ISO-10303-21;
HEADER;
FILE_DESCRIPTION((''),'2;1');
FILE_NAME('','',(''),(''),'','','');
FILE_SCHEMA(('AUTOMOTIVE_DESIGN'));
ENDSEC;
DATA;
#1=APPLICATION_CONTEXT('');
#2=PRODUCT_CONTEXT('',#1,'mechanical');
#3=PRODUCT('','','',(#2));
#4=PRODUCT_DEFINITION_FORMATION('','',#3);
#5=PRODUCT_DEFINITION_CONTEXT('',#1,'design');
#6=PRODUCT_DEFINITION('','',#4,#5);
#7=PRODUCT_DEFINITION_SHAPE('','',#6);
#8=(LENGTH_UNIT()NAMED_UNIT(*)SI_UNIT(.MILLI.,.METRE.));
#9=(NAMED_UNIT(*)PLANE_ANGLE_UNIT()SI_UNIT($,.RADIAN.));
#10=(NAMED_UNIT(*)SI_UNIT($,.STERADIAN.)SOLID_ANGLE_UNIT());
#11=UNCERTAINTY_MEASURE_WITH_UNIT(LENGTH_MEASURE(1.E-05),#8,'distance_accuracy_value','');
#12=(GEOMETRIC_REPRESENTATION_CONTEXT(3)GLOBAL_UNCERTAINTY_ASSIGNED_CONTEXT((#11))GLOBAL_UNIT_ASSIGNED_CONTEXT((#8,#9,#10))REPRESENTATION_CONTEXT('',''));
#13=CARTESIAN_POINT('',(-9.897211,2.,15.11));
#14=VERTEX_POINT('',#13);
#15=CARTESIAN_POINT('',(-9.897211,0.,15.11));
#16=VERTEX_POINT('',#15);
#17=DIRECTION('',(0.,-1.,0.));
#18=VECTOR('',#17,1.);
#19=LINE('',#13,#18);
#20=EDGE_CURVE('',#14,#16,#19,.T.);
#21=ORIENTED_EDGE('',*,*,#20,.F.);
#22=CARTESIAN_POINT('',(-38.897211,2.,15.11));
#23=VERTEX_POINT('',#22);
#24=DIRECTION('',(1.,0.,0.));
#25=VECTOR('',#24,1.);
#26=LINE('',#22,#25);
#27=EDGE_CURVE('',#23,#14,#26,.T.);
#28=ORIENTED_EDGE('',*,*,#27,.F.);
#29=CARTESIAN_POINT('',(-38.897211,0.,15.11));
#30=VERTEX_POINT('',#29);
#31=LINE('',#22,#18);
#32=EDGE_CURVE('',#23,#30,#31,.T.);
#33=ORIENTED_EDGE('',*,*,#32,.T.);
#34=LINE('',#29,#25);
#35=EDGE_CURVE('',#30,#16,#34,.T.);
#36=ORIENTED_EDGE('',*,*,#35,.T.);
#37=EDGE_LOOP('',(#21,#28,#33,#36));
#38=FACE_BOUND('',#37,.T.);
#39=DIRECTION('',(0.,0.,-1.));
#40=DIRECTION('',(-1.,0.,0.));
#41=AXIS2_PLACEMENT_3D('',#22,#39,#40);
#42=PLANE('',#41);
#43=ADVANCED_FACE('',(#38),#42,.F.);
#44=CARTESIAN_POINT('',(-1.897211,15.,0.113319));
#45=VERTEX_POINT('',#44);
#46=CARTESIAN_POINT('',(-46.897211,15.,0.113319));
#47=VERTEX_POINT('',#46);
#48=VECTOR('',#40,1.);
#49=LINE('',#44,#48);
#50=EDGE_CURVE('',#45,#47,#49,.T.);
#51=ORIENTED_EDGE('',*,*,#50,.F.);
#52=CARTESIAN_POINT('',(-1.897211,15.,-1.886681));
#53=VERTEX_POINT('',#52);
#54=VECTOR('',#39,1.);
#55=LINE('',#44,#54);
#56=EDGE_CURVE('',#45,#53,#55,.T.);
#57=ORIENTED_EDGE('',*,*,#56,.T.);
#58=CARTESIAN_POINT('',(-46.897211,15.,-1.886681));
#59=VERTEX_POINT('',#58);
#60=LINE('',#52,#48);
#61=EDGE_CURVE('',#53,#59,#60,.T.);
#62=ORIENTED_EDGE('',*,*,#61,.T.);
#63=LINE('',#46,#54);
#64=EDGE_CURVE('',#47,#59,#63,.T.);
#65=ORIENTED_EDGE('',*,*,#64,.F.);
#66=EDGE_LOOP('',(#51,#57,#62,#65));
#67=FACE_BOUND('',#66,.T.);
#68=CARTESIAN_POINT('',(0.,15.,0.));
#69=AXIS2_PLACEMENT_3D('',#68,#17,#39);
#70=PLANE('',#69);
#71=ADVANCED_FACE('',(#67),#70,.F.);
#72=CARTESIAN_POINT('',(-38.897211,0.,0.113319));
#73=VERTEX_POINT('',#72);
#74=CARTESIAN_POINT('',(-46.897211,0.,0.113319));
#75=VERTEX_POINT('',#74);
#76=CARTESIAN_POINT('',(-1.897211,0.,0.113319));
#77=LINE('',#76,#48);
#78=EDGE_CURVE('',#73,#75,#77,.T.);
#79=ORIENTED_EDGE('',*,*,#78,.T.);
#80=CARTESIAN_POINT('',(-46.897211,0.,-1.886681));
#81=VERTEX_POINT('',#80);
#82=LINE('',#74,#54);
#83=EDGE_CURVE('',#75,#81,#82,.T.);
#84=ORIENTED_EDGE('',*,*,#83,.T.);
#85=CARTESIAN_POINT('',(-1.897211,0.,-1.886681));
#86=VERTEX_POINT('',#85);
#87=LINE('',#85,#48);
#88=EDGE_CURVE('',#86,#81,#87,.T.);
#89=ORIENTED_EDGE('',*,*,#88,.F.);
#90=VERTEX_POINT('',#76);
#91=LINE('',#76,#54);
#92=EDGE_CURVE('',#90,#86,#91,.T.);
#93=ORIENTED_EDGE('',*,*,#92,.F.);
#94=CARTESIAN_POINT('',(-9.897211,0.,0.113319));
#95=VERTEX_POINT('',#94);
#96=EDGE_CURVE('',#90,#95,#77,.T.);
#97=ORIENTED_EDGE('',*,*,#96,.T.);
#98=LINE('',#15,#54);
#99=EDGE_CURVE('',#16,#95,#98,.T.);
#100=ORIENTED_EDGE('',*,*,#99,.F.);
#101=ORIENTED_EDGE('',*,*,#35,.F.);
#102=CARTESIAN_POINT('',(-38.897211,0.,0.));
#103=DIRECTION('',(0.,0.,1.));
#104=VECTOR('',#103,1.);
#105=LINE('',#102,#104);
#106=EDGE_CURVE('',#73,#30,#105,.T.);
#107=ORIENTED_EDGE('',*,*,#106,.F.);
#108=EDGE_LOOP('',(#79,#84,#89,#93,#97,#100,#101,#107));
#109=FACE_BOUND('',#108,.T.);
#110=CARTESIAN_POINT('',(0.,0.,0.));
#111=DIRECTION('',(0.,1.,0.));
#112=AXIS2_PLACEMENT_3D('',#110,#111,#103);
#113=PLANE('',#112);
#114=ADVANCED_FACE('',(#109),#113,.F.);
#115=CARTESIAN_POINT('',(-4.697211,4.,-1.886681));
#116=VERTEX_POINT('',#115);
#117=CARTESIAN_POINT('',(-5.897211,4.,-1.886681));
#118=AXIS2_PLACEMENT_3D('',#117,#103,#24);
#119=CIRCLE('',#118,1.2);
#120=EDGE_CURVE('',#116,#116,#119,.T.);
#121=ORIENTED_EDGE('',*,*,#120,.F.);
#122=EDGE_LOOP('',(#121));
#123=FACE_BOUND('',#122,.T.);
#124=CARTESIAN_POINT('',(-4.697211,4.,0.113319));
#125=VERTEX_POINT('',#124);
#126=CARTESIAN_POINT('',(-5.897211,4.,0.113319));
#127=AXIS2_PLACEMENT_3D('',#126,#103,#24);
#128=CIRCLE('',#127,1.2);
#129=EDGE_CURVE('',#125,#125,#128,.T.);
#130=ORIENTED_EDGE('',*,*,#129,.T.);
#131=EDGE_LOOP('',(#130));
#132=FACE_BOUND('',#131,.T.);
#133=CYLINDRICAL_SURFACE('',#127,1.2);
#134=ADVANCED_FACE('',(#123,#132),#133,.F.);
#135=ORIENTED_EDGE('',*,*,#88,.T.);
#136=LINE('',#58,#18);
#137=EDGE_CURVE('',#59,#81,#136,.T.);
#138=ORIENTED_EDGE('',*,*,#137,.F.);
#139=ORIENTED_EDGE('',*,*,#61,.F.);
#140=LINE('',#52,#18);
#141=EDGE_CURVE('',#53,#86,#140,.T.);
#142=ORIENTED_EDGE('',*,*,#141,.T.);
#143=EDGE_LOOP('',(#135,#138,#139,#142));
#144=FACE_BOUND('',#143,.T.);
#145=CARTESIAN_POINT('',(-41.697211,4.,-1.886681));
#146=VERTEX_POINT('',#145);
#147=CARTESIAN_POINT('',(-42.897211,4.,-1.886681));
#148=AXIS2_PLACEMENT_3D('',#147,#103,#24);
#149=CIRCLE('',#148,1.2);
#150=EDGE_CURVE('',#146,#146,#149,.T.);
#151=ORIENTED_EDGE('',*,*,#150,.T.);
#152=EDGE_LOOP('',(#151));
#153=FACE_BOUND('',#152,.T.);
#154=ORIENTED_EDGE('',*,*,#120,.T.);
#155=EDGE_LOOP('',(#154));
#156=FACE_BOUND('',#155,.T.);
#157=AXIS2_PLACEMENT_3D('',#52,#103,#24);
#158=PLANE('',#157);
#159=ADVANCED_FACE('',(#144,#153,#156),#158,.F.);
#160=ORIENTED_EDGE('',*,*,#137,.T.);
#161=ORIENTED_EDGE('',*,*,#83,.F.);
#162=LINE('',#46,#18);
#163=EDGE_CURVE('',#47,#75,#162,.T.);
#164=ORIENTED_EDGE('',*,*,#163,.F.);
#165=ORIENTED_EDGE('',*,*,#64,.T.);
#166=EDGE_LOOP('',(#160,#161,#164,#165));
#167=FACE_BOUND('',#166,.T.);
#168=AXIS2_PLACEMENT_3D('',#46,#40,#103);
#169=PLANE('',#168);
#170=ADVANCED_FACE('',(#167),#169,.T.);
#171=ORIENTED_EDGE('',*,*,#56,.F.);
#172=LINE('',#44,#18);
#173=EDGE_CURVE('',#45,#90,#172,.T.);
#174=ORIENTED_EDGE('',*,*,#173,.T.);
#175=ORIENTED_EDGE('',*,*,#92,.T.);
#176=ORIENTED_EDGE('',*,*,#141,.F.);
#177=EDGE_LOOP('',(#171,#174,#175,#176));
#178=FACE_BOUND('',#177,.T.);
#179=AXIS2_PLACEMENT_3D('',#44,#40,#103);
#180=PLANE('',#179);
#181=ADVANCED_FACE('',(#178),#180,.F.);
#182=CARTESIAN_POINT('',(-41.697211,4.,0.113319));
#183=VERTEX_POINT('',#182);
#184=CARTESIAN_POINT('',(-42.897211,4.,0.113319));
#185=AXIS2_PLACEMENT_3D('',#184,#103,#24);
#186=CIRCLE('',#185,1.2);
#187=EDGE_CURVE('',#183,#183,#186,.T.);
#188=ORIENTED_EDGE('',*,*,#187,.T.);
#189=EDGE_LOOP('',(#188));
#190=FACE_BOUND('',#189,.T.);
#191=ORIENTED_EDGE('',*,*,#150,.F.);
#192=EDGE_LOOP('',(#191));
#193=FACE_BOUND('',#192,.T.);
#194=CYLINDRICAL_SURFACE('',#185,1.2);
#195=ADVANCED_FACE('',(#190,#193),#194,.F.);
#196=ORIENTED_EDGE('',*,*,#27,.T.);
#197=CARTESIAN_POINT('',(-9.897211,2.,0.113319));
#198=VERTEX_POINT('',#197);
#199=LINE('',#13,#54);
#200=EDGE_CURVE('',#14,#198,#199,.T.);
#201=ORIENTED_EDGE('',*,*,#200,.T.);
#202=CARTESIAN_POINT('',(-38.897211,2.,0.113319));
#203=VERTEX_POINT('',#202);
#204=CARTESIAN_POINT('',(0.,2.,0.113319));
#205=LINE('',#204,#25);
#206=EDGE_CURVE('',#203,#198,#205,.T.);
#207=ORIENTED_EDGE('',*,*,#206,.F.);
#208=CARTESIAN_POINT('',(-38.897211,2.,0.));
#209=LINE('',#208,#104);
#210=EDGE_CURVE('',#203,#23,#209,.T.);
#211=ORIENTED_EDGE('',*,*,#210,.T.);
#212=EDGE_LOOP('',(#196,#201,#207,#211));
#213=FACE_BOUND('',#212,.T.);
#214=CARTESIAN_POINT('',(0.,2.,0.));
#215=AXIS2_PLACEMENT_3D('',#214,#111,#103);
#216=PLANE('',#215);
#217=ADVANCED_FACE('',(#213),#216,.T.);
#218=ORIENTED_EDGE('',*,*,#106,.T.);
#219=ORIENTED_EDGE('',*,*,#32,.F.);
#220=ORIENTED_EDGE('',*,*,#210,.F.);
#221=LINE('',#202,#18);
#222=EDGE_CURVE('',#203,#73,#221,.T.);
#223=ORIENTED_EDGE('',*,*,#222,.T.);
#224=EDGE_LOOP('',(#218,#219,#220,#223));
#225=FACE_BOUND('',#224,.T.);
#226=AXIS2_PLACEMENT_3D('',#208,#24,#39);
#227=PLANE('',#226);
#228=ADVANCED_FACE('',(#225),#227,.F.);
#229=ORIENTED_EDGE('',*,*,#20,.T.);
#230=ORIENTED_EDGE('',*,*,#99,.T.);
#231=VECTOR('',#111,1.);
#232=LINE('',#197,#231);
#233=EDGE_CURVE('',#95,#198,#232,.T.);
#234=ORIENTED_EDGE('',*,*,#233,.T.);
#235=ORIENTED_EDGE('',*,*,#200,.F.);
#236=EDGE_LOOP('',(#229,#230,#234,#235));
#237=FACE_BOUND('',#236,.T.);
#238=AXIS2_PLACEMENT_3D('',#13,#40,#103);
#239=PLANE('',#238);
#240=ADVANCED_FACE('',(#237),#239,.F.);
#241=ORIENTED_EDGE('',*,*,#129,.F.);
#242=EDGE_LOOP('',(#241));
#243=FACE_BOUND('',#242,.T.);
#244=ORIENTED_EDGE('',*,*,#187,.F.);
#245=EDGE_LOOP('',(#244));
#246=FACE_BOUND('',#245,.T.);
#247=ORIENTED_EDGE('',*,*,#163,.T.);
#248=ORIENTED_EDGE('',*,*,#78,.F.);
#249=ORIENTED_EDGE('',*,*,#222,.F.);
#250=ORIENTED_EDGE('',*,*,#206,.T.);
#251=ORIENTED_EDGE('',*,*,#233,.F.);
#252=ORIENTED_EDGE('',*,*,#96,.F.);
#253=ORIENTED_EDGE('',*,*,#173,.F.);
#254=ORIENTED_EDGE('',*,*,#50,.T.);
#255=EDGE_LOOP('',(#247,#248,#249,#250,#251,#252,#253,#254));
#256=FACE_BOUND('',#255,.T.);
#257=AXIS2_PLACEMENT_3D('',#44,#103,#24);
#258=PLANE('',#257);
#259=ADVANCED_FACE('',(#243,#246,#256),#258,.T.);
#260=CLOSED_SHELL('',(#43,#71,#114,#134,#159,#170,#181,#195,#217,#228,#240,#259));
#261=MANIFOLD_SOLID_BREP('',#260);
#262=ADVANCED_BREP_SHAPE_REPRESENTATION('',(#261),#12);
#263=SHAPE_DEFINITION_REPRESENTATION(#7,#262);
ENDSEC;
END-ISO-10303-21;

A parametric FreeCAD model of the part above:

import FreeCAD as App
import Part
import Sketcher

V = App.Vector
Q = App.Units.Quantity


def add_polygon(sketch, points):
    """Adds a closed chain of lines whose ends are joined by coincident constraints."""
    first, n = sketch.GeometryCount, len(points)
    for a, b in zip(points, points[1:] + points[:1]):
        sketch.addGeometry(Part.LineSegment(App.Vector(*a, 0), App.Vector(*b, 0)), False)
    for i in range(n):
        sketch.addConstraint(Sketcher.Constraint("Coincident", first + i, 2, first + (i + 1) % n, 1))

doc = App.newDocument("Part")
params = doc.addObject("Spreadsheet::Sheet", "Params")
for row, (alias, value) in enumerate([
    ("sketch1_width", "29 mm"),
    ("sketch1_height", "15.11 mm"),
    ("pad1_length", "2 mm"),
    ("sketch2_width", "45 mm"),
    ("sketch2_height", "2 mm"),
    ("pad2_length", "15 mm"),
    ("sketch3_diameter", "2.4 mm"),
    ("hole_diameter", "2.4 mm"),
    ("sketch4_diameter", "2.4 mm"),
    ("hole2_diameter", "2.4 mm"),
], start=1):
    params.set(f"A{row}", alias)
    params.set(f"B{row}", "=" + value)
    params.setAlias(f"B{row}", alias)

body = doc.addObject("PartDesign::Body", "Body")

# Sketch on XZ plane
sketch1 = body.newObject("Sketcher::SketchObject", "Sketch")
sketch1.AttachmentSupport = (doc.getObject("XZ_Plane"), [""])
sketch1.MapMode = "FlatFace"
add_polygon(sketch1, [(-39, 0), (-39, 15), (-10, 15), (-10, 0)])  # lines 0-3
sketch1.addConstraint(Sketcher.Constraint("Vertical", 0))
sketch1.addConstraint(Sketcher.Constraint("Horizontal", 1))
sketch1.addConstraint(Sketcher.Constraint("Vertical", 2))
sketch1.addConstraint(Sketcher.Constraint("Horizontal", 3))
sketch1.addConstraint(Sketcher.Constraint("PointOnObject", 2, 2, -1))
sketch1.addConstraint(Sketcher.Constraint("DistanceX", 1, 1, 1, 2, Q("29 mm")))
sketch1.addConstraint(Sketcher.Constraint("DistanceY", 0, 1, 0, 2, Q("15.11 mm")))
sketch1.addConstraint(Sketcher.Constraint("DistanceX", 0, 2, -1, 1, Q("38.897211 mm")))
sketch1.setExpression("Constraints[9]", "Params.sketch1_width")
sketch1.setExpression("Constraints[10]", "Params.sketch1_height")
pad1 = body.newObject("PartDesign::Pad", "Pad")
pad1.Profile = sketch1
pad1.setExpression("Length", "Params.pad1_length")
pad1.Reversed = True

# Sketch on XZ plane
sketch2 = body.newObject("Sketcher::SketchObject", "Sketch001")
sketch2.AttachmentSupport = (doc.getObject("XZ_Plane"), [""])
sketch2.MapMode = "FlatFace"
add_polygon(sketch2, [(-1.9, -1.9), (-1.9, 0.1), (-46.9, 0.1), (-46.9, -1.9)])  # lines 0-3
sketch2.addConstraint(Sketcher.Constraint("Vertical", 0))
sketch2.addConstraint(Sketcher.Constraint("Horizontal", 1))
sketch2.addConstraint(Sketcher.Constraint("Vertical", 2))
sketch2.addConstraint(Sketcher.Constraint("Horizontal", 3))
sketch2.addConstraint(Sketcher.Constraint("DistanceX", 1, 2, 1, 1, Q("45 mm")))
sketch2.addConstraint(Sketcher.Constraint("DistanceY", 0, 1, 0, 2, Q("2 mm")))
sketch2.addConstraint(Sketcher.Constraint("DistanceX", 0, 2, -1, 1, Q("1.897211 mm")))
sketch2.addConstraint(Sketcher.Constraint("DistanceY", -1, 1, 0, 2, Q("0.113319 mm")))
sketch2.setExpression("Constraints[8]", "Params.sketch2_width")
sketch2.setExpression("Constraints[9]", "Params.sketch2_height")
pad2 = body.newObject("PartDesign::Pad", "Pad001")
pad2.Profile = sketch2
pad2.setExpression("Length", "Params.pad2_length")
pad2.Reversed = True

# Sketch on XY plane
sketch3 = body.newObject("Sketcher::SketchObject", "Sketch002")
sketch3.AttachmentSupport = (doc.getObject("XY_Plane"), [""])
sketch3.MapMode = "FlatFace"
sketch3.AttachmentOffset = App.Placement(V(0, 0, 0.113319), App.Rotation())
sketch3.addGeometry(Part.Circle(V(-42.9, 4, 0), V(0, 0, 1), 1.2), False)
sketch3.addConstraint(Sketcher.Constraint("Diameter", 0, Q("2.4 mm")))
sketch3.addConstraint(Sketcher.Constraint("DistanceY", -1, 1, 0, 3, Q("4 mm")))
sketch3.addConstraint(Sketcher.Constraint("DistanceX", 0, 3, -1, 1, Q("42.897211 mm")))
sketch3.setExpression("Constraints[0]", "Params.sketch3_diameter")
doc.recompute()
hole = body.newObject("PartDesign::Hole", "Hole")
hole.Profile = sketch3
hole.ThreadType = "None"
hole.setExpression("Diameter", "Params.hole_diameter")
hole.DepthType = "ThroughAll"

# Sketch on XY plane
sketch4 = body.newObject("Sketcher::SketchObject", "Sketch003")
sketch4.AttachmentSupport = (doc.getObject("XY_Plane"), [""])
sketch4.MapMode = "FlatFace"
sketch4.AttachmentOffset = App.Placement(V(0, 0, 0.113319), App.Rotation())
sketch4.addGeometry(Part.Circle(V(-5.9, 4, 0), V(0, 0, 1), 1.2), False)
sketch4.addConstraint(Sketcher.Constraint("Diameter", 0, Q("2.4 mm")))
sketch4.addConstraint(Sketcher.Constraint("DistanceY", -1, 1, 0, 3, Q("4 mm")))
sketch4.addConstraint(Sketcher.Constraint("DistanceX", 0, 3, -1, 1, Q("5.897211 mm")))
sketch4.setExpression("Constraints[0]", "Params.sketch4_diameter")
doc.recompute()
hole2 = body.newObject("PartDesign::Hole", "Hole001")
hole2.Profile = sketch4
hole2.ThreadType = "None"
hole2.setExpression("Diameter", "Params.hole2_diameter")
hole2.DepthType = "ThroughAll"

doc.recompute()
